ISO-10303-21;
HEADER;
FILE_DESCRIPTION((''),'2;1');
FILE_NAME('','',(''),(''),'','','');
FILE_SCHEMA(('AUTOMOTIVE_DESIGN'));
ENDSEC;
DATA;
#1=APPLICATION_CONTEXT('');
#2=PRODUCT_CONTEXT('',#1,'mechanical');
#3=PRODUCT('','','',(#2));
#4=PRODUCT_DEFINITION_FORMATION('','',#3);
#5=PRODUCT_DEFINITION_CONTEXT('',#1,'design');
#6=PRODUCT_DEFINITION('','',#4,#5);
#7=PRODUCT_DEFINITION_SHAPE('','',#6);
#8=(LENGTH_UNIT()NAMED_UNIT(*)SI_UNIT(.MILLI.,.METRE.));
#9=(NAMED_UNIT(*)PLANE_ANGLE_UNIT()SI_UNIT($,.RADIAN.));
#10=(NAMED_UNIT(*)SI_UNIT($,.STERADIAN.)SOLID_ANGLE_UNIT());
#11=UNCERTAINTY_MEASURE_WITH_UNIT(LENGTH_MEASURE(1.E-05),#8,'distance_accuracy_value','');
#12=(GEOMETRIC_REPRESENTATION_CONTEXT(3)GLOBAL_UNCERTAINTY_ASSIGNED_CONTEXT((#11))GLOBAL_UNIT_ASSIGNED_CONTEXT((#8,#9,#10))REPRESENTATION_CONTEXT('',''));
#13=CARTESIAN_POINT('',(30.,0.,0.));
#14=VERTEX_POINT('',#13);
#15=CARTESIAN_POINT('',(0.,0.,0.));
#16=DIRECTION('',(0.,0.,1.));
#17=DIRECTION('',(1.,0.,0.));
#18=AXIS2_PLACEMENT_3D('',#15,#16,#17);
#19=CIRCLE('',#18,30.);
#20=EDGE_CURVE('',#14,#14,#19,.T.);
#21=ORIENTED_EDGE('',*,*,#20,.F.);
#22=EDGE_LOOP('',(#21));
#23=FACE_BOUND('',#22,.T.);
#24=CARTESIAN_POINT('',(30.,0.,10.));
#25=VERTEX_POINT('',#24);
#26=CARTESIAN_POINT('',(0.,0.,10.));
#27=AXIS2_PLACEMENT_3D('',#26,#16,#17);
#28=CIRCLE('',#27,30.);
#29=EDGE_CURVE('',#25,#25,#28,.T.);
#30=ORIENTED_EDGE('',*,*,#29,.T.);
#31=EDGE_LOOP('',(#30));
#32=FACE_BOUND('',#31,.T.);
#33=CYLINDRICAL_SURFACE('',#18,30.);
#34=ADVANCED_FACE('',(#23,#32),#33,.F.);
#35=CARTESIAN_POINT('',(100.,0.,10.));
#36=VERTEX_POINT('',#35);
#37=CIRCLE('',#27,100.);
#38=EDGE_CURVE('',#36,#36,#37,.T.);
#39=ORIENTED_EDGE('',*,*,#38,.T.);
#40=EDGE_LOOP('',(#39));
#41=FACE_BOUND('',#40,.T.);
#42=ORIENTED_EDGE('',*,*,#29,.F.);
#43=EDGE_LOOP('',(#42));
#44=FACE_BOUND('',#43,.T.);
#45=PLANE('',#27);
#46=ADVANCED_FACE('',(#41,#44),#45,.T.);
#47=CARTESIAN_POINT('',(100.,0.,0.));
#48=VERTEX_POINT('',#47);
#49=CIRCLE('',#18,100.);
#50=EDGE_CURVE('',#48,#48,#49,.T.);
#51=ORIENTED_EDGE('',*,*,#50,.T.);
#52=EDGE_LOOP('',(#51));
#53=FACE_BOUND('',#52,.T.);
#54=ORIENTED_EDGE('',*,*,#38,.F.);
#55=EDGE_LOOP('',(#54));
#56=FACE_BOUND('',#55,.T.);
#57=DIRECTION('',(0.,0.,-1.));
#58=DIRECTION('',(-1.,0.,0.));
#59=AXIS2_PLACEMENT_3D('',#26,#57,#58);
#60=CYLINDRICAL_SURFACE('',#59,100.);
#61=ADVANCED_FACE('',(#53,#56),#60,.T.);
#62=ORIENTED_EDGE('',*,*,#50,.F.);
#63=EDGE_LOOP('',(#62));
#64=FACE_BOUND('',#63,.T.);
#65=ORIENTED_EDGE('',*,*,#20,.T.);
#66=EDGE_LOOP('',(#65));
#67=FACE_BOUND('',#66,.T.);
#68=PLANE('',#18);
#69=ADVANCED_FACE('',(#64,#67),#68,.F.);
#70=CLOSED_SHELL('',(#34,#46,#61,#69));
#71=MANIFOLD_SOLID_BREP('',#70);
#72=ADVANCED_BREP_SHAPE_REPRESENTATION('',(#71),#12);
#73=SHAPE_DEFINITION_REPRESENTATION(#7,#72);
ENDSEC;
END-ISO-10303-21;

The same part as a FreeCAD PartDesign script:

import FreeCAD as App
import Part
import Sketcher

V = App.Vector

doc = App.newDocument("Part")
body = doc.addObject("PartDesign::Body", "Body")

# Sketch on XY plane
sketch1 = doc.addObject("Sketcher::SketchObject", "Sketch")
body.addObject(sketch1)
sketch1.AttachmentSupport = (doc.XY_Plane, [""])
sketch1.MapMode = "FlatFace"
sketch1.addGeometry(Part.Circle(V(0, 0, 0), V(0, 0, 1), 100), False)
sketch1.addConstraint([
    Sketcher.Constraint("Coincident", 0, 3, -1, 1),
    Sketcher.Constraint("Diameter", 0, 200.0),
])
pad1 = doc.addObject("PartDesign::Pad", "Pad")
body.addObject(pad1)
pad1.Profile = sketch1
pad1.Length = 10

# Sketch on XY plane
sketch2 = doc.addObject("Sketcher::SketchObject", "Sketch001")
body.addObject(sketch2)
sketch2.AttachmentSupport = (doc.XY_Plane, [""])
sketch2.MapMode = "FlatFace"
sketch2.AttachmentOffset = App.Placement(V(0, 0, 10), App.Rotation())
sketch2.addGeometry(Part.Circle(V(0, 0, 0), V(0, 0, 1), 30), False)
sketch2.addConstraint([
    Sketcher.Constraint("Coincident", 0, 3, -1, 1),
    Sketcher.Constraint("Diameter", 0, 60.0),
])
pocket1 = doc.addObject("PartDesign::Pocket", "Pocket")
body.addObject(pocket1)
pocket1.Profile = sketch2
pocket1.Length = 10

doc.recompute()
